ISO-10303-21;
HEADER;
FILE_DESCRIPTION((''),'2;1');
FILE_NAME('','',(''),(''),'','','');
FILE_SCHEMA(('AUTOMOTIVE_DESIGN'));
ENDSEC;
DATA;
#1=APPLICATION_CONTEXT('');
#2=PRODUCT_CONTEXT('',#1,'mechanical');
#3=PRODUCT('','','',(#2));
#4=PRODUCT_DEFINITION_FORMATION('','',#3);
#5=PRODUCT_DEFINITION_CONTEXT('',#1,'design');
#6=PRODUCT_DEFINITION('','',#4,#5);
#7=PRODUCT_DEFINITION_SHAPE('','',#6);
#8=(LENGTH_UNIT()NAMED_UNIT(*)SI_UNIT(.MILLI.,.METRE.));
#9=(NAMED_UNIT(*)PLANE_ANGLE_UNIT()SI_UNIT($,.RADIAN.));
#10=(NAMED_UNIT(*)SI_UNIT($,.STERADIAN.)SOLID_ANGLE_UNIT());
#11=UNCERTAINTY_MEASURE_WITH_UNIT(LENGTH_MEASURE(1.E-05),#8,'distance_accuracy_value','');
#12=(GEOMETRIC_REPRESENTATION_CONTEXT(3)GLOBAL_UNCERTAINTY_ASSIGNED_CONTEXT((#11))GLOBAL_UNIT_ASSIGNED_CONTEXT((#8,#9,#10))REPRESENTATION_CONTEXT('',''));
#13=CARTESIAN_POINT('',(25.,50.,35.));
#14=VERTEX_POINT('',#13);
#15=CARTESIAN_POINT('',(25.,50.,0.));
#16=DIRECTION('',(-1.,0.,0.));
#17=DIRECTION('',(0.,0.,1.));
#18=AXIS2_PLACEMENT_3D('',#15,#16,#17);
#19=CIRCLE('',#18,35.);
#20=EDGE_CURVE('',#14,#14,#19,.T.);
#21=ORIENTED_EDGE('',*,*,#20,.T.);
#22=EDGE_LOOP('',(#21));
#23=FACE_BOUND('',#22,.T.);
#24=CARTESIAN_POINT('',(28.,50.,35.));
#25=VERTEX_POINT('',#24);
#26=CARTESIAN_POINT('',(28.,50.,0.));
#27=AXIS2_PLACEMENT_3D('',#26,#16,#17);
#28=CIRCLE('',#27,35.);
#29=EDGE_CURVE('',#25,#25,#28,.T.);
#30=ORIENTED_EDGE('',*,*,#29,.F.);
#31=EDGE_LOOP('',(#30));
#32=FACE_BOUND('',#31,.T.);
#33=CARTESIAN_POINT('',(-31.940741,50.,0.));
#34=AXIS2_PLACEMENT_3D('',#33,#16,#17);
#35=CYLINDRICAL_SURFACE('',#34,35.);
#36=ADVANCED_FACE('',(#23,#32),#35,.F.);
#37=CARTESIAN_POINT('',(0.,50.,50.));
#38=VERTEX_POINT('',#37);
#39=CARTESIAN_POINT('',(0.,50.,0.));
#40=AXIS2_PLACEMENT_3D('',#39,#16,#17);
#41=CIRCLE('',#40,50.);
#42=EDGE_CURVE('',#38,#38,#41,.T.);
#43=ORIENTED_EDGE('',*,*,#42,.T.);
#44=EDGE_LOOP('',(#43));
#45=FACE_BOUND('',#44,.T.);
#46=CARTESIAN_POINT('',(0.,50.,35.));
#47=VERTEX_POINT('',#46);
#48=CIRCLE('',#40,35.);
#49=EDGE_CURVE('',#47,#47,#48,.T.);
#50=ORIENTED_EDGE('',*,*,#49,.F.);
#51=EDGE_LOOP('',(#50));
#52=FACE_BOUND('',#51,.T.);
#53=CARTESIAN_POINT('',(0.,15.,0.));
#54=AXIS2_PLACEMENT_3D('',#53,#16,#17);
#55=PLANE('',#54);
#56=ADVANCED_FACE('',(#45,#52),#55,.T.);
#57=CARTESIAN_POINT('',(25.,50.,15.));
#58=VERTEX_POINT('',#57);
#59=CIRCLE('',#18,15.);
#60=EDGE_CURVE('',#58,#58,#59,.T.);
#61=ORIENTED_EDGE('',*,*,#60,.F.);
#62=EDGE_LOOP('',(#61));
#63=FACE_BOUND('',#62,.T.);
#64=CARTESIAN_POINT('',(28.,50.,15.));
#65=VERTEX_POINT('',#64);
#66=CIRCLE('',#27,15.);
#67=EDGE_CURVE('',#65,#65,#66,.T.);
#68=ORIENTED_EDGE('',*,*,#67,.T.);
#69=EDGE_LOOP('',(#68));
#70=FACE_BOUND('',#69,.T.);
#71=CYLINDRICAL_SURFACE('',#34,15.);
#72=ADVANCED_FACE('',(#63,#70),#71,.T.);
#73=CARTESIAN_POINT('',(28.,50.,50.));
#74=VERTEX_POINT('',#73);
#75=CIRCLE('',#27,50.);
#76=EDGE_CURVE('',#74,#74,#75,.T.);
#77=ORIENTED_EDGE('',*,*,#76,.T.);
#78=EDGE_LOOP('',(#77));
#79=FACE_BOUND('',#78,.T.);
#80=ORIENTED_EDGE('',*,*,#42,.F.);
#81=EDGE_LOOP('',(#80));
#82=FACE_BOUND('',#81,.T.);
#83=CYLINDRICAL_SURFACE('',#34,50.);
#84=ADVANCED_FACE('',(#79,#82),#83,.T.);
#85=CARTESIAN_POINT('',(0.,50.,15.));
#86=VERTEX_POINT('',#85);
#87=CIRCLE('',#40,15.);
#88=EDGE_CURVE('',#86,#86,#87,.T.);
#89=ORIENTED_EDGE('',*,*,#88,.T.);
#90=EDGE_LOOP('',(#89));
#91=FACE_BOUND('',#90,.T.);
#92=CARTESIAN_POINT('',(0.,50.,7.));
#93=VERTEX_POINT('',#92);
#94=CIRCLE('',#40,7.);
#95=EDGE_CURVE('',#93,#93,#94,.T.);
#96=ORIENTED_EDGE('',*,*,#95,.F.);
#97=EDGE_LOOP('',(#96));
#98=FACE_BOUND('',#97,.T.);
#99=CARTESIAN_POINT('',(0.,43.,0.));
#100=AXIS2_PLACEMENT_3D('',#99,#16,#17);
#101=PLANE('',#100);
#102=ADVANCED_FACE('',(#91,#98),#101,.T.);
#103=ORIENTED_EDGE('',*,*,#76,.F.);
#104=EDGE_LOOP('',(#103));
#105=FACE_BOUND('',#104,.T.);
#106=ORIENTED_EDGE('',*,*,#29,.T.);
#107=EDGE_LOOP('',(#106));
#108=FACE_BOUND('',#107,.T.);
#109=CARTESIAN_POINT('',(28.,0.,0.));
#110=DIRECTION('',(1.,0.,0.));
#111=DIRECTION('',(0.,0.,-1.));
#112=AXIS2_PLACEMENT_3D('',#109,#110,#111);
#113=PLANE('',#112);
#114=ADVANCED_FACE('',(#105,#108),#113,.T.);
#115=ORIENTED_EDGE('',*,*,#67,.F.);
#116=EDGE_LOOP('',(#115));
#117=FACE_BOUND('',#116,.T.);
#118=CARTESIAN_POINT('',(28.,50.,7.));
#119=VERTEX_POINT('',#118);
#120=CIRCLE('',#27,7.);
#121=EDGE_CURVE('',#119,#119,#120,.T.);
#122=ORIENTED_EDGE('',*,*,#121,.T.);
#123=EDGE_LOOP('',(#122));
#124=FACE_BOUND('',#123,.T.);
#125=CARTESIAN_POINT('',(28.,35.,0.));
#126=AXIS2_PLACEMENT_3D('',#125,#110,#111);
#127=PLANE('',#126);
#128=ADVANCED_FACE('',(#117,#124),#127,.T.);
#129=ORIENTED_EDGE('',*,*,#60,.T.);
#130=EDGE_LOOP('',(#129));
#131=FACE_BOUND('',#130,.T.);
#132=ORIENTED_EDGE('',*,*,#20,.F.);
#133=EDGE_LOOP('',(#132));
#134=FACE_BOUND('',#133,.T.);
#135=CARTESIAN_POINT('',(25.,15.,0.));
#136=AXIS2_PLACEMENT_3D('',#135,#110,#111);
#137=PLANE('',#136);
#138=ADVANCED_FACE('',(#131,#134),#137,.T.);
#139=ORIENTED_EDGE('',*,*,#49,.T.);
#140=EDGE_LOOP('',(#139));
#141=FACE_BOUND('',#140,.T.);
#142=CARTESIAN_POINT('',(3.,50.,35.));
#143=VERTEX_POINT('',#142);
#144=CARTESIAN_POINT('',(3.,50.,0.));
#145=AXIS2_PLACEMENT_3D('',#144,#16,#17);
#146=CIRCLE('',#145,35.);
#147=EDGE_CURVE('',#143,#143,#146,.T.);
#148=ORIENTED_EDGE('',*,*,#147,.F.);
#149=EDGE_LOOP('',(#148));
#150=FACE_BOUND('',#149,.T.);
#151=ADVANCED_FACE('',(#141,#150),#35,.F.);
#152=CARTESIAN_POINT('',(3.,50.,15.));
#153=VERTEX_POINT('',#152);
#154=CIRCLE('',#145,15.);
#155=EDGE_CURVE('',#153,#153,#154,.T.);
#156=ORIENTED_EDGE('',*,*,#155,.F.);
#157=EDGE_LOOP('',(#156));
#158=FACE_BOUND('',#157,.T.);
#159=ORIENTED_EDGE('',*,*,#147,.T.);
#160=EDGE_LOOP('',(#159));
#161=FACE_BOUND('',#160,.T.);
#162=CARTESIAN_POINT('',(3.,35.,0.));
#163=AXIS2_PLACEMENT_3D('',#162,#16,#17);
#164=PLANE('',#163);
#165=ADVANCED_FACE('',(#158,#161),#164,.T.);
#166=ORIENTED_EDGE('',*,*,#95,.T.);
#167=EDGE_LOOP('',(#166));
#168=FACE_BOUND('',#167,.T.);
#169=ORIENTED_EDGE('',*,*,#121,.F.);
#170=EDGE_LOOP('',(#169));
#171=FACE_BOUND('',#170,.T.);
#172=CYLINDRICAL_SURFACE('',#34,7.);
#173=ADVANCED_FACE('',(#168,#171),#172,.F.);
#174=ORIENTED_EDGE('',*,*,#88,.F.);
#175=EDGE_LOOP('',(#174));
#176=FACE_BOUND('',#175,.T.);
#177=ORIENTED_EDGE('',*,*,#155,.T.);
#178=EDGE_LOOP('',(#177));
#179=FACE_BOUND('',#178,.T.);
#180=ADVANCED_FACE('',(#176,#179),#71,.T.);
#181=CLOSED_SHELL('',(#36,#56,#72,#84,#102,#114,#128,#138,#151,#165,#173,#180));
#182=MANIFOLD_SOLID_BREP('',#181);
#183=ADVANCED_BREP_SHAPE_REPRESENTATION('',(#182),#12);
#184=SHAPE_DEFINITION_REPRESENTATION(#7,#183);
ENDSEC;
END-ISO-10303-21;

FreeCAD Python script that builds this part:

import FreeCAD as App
import Part
import Sketcher

doc = App.newDocument("Part")
params = doc.addObject("Spreadsheet::Sheet", "Params")
for row, (alias, value) in enumerate([
    ("sketch1_width", "28 mm"),
    ("sketch1_width2", "3 mm"),
    ("sketch1_height", "15 mm"),
    ("sketch1_height2", "20 mm"),
    ("sketch1_height3", "8 mm"),
    ("revolution_angle", "360 deg"),
], start=1):
    params.set(f"A{row}", alias)
    params.set(f"B{row}", "=" + value)
    params.setAlias(f"B{row}", alias)

body = doc.addObject("PartDesign::Body", "Body")

# Sketch on XY plane
sketch1 = body.newObject("Sketcher::SketchObject", "Sketch")
sketch1.AttachmentSupport = (doc.getObject("XY_Plane"), [""])
sketch1.MapMode = "FlatFace"
sketch1.addGeometry(Part.LineSegment(App.Vector(0, 0, 0), App.Vector(28, 0, 0)), False)
sketch1.addGeometry(Part.LineSegment(App.Vector(28, 0, 0), App.Vector(28, 15, 0)), False)
sketch1.addGeometry(Part.LineSegment(App.Vector(28, 15, 0), App.Vector(25, 15, 0)), False)
sketch1.addGeometry(Part.LineSegment(App.Vector(25, 15, 0), App.Vector(25, 35, 0)), False)
sketch1.addGeometry(Part.LineSegment(App.Vector(25, 35, 0), App.Vector(28, 35, 0)), False)
sketch1.addGeometry(Part.LineSegment(App.Vector(28, 35, 0), App.Vector(28, 43, 0)), False)
sketch1.addGeometry(Part.LineSegment(App.Vector(28, 43, 0), App.Vector(0, 43, 0)), False)
sketch1.addGeometry(Part.LineSegment(App.Vector(0, 43, 0), App.Vector(0, 35, 0)), False)
sketch1.addGeometry(Part.LineSegment(App.Vector(0, 35, 0), App.Vector(3, 35, 0)), False)
sketch1.addGeometry(Part.LineSegment(App.Vector(3, 35, 0), App.Vector(3, 15, 0)), False)
sketch1.addGeometry(Part.LineSegment(App.Vector(3, 15, 0), App.Vector(0, 15, 0)), False)
sketch1.addGeometry(Part.LineSegment(App.Vector(0, 15, 0), App.Vector(0, 0, 0)), False)
sketch1.addGeometry(Part.LineSegment(App.Vector(0, 50, 0), App.Vector(28, 50, 0)), True)  # axis
sketch1.addConstraint(Sketcher.Constraint("Coincident", 0, 2, 1, 1))
sketch1.addConstraint(Sketcher.Constraint("Coincident", 1, 2, 2, 1))
sketch1.addConstraint(Sketcher.Constraint("Coincident", 2, 2, 3, 1))
sketch1.addConstraint(Sketcher.Constraint("Coincident", 3, 2, 4, 1))
sketch1.addConstraint(Sketcher.Constraint("Coincident", 4, 2, 5, 1))
sketch1.addConstraint(Sketcher.Constraint("Coincident", 5, 2, 6, 1))
sketch1.addConstraint(Sketcher.Constraint("Coincident", 6, 2, 7, 1))
sketch1.addConstraint(Sketcher.Constraint("Coincident", 7, 2, 8, 1))
sketch1.addConstraint(Sketcher.Constraint("Coincident", 8, 2, 9, 1))
sketch1.addConstraint(Sketcher.Constraint("Coincident", 9, 2, 10, 1))
sketch1.addConstraint(Sketcher.Constraint("Coincident", 10, 2, 11, 1))
sketch1.addConstraint(Sketcher.Constraint("Coincident", 11, 2, 0, 1))
sketch1.addConstraint(Sketcher.Constraint("Horizontal", 0))
sketch1.addConstraint(Sketcher.Constraint("Vertical", 1))
sketch1.addConstraint(Sketcher.Constraint("Horizontal", 2))
sketch1.addConstraint(Sketcher.Constraint("Vertical", 3))
sketch1.addConstraint(Sketcher.Constraint("Horizontal", 4))
sketch1.addConstraint(Sketcher.Constraint("Vertical", 5))
sketch1.addConstraint(Sketcher.Constraint("Horizontal", 6))
sketch1.addConstraint(Sketcher.Constraint("Vertical", 7))
sketch1.addConstraint(Sketcher.Constraint("Horizontal", 8))
sketch1.addConstraint(Sketcher.Constraint("Vertical", 9))
sketch1.addConstraint(Sketcher.Constraint("Horizontal", 10))
sketch1.addConstraint(Sketcher.Constraint("Vertical", 11))
sketch1.addConstraint(Sketcher.Constraint("Horizontal", 12))
sketch1.addConstraint(Sketcher.Constraint("Coincident", 11, 2, -1, 1))
sketch1.addConstraint(Sketcher.Constraint("PointOnObject", 6, 2, -2))
sketch1.addConstraint(Sketcher.Constraint("PointOnObject", 12, 1, -2))
sketch1.addConstraint(Sketcher.Constraint("Horizontal", 4, 2, 7, 2))
sketch1.addConstraint(Sketcher.Constraint("Horizontal", 2, 2, 9, 2))
sketch1.addConstraint(Sketcher.Constraint("Vertical", 1, 2, 4, 2))
sketch1.addConstraint(Sketcher.Constraint("Vertical", 5, 2, 12, 2))
sketch1.addConstraint(Sketcher.Constraint("Equal", 4, 8))
sketch1.addConstraint(Sketcher.Constraint("DistanceX", 0, 1, 0, 2, 28.0))
sketch1.addConstraint(Sketcher.Constraint("DistanceX", 2, 2, 2, 1, 3.0))
sketch1.addConstraint(Sketcher.Constraint("DistanceY", 1, 1, 1, 2, 15.0))
sketch1.addConstraint(Sketcher.Constraint("DistanceY", 3, 1, 3, 2, 20.0))
sketch1.addConstraint(Sketcher.Constraint("DistanceY", 5, 1, 5, 2, 8.0))
sketch1.addConstraint(Sketcher.Constraint("DistanceY", -1, 1, 12, 1, 50.0))
sketch1.setExpression("Constraints[33]", "Params.sketch1_width")
sketch1.setExpression("Constraints[34]", "Params.sketch1_width2")
sketch1.setExpression("Constraints[35]", "Params.sketch1_height")
sketch1.setExpression("Constraints[36]", "Params.sketch1_height2")
sketch1.setExpression("Constraints[37]", "Params.sketch1_height3")
revolution = body.newObject("PartDesign::Revolution", "Revolution")
revolution.Profile = sketch1
revolution.ReferenceAxis = (sketch1, ["Axis0"])
revolution.setExpression("Angle", "Params.revolution_angle")

doc.recompute()
